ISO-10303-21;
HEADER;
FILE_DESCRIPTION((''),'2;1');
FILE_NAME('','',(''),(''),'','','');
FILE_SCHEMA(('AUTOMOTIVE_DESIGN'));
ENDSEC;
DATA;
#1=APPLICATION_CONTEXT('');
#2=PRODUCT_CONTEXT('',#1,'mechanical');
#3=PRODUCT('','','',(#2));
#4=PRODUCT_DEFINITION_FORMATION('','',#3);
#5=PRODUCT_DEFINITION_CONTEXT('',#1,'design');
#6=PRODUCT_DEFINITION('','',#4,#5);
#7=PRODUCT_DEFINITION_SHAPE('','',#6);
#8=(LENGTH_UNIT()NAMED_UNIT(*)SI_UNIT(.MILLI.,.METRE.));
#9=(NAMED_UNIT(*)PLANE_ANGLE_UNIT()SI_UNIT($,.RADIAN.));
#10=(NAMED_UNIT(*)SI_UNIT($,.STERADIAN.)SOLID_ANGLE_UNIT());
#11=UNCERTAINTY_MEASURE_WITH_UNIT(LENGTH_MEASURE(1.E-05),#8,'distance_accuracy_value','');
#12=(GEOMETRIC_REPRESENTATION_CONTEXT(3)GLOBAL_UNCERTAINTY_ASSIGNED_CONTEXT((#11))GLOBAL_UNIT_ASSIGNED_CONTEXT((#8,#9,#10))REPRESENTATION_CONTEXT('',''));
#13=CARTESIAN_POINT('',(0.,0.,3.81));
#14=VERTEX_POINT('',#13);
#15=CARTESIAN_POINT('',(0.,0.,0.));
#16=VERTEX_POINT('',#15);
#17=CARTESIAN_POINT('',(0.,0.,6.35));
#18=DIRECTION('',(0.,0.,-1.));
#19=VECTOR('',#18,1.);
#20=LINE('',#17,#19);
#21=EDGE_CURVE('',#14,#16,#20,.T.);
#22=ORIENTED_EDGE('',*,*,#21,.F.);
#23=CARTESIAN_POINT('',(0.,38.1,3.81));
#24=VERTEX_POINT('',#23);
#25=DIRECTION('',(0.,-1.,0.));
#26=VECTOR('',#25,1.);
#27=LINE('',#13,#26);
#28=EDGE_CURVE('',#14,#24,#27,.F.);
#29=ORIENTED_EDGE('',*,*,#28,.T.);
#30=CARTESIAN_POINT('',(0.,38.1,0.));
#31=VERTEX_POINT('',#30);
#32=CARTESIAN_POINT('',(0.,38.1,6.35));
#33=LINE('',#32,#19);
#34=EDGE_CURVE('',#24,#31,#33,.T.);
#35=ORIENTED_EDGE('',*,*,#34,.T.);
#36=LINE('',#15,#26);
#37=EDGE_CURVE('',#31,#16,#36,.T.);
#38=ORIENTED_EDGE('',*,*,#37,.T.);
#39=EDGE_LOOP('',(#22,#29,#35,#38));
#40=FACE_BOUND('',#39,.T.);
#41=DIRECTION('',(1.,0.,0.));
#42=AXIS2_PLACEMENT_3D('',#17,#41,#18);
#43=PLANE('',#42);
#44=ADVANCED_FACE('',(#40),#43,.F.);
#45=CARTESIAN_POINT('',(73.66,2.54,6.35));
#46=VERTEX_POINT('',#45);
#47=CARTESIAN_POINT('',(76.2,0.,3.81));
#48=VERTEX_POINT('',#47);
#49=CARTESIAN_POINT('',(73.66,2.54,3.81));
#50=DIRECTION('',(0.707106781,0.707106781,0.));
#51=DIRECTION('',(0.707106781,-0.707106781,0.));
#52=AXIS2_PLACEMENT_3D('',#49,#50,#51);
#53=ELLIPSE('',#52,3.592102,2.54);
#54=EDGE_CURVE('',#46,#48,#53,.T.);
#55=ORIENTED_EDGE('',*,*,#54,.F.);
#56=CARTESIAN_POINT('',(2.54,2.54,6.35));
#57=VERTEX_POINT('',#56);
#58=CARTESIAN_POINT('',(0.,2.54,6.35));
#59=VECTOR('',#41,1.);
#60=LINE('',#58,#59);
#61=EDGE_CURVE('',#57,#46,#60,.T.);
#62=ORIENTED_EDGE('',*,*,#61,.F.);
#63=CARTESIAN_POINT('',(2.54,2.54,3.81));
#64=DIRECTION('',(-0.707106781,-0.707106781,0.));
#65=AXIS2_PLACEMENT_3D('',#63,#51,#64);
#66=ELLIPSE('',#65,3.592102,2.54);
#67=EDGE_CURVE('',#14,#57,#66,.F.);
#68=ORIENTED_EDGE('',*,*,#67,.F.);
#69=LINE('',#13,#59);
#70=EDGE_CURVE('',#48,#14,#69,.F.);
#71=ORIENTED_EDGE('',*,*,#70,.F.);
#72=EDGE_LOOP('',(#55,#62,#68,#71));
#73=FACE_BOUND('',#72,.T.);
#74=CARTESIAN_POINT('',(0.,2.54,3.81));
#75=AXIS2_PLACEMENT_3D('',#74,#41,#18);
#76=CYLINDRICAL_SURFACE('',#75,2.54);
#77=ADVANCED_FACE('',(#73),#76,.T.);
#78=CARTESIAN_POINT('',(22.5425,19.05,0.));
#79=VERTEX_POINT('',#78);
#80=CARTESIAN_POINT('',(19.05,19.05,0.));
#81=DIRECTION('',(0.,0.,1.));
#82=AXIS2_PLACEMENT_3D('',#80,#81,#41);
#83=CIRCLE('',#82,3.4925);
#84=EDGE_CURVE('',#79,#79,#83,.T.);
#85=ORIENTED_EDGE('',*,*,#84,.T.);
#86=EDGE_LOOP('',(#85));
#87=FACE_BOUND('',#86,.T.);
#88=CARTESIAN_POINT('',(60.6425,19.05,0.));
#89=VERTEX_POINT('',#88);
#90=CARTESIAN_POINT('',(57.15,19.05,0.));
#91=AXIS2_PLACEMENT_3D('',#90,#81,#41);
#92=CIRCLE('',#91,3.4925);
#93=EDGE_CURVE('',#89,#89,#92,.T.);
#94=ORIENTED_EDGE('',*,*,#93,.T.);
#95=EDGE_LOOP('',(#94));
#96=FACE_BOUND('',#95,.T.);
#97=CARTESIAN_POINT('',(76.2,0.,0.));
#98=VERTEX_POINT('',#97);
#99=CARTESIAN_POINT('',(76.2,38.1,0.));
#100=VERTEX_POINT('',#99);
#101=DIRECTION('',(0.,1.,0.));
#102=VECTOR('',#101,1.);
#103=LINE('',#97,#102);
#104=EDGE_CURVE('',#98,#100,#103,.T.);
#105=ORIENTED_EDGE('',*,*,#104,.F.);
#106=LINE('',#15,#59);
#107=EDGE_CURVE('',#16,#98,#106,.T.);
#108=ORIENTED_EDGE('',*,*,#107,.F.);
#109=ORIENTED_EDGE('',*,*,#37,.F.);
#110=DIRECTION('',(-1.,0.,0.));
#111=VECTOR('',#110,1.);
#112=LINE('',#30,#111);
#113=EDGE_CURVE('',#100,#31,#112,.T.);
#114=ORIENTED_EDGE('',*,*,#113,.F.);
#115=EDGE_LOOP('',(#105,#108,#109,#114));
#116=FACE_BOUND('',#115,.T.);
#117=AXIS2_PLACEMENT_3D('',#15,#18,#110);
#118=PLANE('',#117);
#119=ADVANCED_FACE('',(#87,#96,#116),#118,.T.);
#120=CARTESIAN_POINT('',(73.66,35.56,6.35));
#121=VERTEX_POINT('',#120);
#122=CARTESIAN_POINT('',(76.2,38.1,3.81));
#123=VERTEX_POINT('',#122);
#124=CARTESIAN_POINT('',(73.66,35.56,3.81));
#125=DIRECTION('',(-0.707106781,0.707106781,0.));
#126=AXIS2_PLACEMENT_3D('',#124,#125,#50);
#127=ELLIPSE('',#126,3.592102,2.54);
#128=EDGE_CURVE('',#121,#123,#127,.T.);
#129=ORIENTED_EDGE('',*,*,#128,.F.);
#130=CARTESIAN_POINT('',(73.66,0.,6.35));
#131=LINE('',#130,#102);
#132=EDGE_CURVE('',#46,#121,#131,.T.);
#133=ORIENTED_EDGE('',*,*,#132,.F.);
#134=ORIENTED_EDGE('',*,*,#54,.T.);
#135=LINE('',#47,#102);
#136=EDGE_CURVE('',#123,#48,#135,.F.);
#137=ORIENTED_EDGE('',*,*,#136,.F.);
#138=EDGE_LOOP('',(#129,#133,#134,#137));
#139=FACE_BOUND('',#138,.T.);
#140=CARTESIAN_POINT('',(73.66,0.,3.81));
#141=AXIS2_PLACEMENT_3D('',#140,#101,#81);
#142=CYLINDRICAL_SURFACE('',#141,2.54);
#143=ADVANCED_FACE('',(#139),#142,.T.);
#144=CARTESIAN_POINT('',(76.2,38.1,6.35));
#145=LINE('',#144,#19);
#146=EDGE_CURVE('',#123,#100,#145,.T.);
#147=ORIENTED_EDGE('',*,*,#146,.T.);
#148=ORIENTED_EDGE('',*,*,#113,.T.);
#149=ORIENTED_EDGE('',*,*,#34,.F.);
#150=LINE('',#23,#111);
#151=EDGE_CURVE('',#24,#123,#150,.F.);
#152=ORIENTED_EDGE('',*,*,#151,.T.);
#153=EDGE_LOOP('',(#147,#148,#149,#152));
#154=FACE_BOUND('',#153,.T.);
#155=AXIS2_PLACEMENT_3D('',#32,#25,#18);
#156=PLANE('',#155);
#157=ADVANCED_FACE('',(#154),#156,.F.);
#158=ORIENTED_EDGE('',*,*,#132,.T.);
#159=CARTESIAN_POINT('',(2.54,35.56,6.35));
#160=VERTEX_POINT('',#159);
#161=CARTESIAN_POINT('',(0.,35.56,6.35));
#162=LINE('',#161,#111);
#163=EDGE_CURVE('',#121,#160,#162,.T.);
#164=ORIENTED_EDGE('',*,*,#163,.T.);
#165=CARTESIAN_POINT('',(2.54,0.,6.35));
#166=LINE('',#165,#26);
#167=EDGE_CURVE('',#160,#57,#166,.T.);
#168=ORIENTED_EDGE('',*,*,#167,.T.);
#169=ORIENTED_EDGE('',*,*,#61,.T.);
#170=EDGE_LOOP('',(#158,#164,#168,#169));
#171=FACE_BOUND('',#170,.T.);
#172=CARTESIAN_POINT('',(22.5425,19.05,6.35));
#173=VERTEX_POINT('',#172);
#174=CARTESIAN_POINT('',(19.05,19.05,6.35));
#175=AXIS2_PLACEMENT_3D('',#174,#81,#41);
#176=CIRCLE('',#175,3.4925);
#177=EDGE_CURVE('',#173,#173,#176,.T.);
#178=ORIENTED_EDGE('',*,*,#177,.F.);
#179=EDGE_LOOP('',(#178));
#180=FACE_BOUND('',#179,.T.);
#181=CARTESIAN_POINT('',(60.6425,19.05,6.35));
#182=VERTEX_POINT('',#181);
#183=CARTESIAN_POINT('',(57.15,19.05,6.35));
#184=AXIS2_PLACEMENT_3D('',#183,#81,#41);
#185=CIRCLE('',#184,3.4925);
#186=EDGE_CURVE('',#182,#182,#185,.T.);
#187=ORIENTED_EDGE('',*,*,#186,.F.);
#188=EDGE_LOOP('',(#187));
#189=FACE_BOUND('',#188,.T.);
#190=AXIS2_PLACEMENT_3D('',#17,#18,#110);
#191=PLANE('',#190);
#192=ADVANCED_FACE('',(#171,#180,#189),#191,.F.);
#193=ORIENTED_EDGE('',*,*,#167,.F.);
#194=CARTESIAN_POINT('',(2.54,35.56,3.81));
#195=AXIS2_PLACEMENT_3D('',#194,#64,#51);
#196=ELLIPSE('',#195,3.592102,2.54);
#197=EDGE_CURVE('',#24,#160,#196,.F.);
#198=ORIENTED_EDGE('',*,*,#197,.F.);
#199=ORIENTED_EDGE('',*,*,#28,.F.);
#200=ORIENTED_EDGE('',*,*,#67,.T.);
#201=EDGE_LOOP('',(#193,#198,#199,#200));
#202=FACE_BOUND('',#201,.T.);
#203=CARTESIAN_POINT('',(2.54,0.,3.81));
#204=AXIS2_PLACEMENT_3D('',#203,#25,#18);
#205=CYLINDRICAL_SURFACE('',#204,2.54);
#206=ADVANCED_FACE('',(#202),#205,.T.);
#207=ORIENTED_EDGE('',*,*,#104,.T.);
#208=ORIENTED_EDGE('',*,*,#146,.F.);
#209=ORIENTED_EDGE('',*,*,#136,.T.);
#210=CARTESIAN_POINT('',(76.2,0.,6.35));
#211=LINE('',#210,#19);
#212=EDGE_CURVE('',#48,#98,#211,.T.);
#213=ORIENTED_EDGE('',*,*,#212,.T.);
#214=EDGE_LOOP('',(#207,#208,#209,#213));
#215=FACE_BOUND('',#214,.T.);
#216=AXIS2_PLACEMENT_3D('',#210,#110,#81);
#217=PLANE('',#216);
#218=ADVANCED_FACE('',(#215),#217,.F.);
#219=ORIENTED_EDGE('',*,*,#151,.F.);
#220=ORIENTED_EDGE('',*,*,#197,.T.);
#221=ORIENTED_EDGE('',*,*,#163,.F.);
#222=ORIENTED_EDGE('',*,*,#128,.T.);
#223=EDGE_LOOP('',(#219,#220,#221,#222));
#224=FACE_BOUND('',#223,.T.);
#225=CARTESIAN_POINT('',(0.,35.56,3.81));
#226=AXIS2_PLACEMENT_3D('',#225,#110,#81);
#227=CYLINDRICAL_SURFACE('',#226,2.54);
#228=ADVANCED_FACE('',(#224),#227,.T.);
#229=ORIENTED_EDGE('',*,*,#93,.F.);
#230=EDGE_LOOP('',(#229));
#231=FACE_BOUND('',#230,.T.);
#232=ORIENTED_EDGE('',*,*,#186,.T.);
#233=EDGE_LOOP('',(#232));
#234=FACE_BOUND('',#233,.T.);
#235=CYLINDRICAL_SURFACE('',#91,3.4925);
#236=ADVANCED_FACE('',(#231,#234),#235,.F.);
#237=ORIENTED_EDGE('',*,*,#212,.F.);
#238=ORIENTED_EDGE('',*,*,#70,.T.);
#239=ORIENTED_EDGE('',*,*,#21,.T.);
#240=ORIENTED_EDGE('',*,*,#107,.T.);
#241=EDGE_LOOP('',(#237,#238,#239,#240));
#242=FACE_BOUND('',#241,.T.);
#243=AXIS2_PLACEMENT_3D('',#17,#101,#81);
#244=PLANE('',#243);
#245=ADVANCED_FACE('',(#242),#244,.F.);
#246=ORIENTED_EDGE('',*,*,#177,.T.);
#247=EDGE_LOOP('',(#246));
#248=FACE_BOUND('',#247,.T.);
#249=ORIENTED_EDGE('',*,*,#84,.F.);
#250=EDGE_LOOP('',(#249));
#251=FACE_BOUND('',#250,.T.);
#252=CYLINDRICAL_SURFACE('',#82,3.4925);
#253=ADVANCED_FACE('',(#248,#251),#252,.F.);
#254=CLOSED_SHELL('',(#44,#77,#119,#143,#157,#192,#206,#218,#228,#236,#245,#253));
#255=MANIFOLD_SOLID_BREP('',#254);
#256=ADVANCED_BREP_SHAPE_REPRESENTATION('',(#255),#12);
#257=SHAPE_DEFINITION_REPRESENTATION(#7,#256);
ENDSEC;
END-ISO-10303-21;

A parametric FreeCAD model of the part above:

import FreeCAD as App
import Part
import Sketcher
Q = App.Units.Quantity


def edges_at(feature, points):
    """Names of the edges that pass closest to the given points."""
    edges = feature.Shape.Edges
    near = lambda p: min(range(len(edges)), key=lambda i: edges[i].distToShape(Part.Vertex(*p))[0])
    return sorted({f"Edge{near(p) + 1}" for p in points})


def add_polygon(sketch, points):
    """Adds a closed chain of lines whose ends are joined by coincident constraints."""
    first, n = sketch.GeometryCount, len(points)
    for a, b in zip(points, points[1:] + points[:1]):
        sketch.addGeometry(Part.LineSegment(App.Vector(*a, 0), App.Vector(*b, 0)), False)
    for i in range(n):
        sketch.addConstraint(Sketcher.Constraint("Coincident", first + i, 2, first + (i + 1) % n, 1))

doc = App.newDocument("Part")
params = doc.addObject("Spreadsheet::Sheet", "Params")
for row, (alias, value) in enumerate([
    ("sketch1_width", "3 in"),
    ("sketch1_height", "1.5 in"),
    ("pad1_length", "0.25 in"),
    ("fillet_radius", "0.1 in"),
    ("sketch2_diameter", "0.275 in"),
    ("pocket1_length", "0.25 in"),
], start=1):
    params.set(f"A{row}", alias)
    params.set(f"B{row}", "=" + value)
    params.setAlias(f"B{row}", alias)

body = doc.addObject("PartDesign::Body", "Body")

# Sketch on XY plane
sketch1 = body.newObject("Sketcher::SketchObject", "Sketch")
sketch1.AttachmentSupport = (doc.getObject("XY_Plane"), [""])
sketch1.MapMode = "FlatFace"
add_polygon(sketch1, [(0, 38), (0, 0), (76, 0), (76, 38)])  # lines 0-3
sketch1.addConstraint([
    Sketcher.Constraint("Vertical", 0),
    Sketcher.Constraint("Horizontal", 1),
    Sketcher.Constraint("Vertical", 2),
    Sketcher.Constraint("Horizontal", 3),
    Sketcher.Constraint("Coincident", 0, 2, -1, 1),
    Sketcher.Constraint("DistanceX", 1, 1, 1, 2, Q("3 in")),
    Sketcher.Constraint("DistanceY", 0, 2, 0, 1, Q("1.5 in")),
])
sketch1.setExpression("Constraints[9]", "Params.sketch1_width")
sketch1.setExpression("Constraints[10]", "Params.sketch1_height")
pad1 = body.newObject("PartDesign::Pad", "Pad")
pad1.Profile = sketch1
pad1.setExpression("Length", "Params.pad1_length")
doc.recompute()

fillet = body.newObject("PartDesign::Fillet", "Fillet")
fillet.Base = (pad1, edges_at(pad1, [
    (76.2, 19.05, 6.35),
    (38.1, 38.1, 6.35),
    (0, 19.05, 6.35),
    (38.1, 0, 6.35),
]))
fillet.setExpression("Radius", "Params.fillet_radius")

# Sketch on XY plane
sketch2 = body.newObject("Sketcher::SketchObject", "Sketch001")
sketch2.AttachmentSupport = (doc.getObject("XY_Plane"), [""])
sketch2.MapMode = "FlatFace"
sketch2.AttachmentOffset = App.Placement(App.Vector(0, 0, 0.25 * 25.4), App.Rotation())
sketch2.addGeometry([
    Part.Circle(App.Vector(19.1, 19.1, 0), App.Vector(0, 0, 1), 3.5),
    Part.Circle(App.Vector(57.1, 19.1, 0), App.Vector(0, 0, 1), 3.5),
], False)
sketch2.addConstraint([
    Sketcher.Constraint("Equal", 0, 1),
    Sketcher.Constraint("Horizontal", 0, 3, 1, 3),
    Sketcher.Constraint("Diameter", 0, Q("0.275 in")),
    Sketcher.Constraint("DistanceX", 0, 3, 1, 3, Q("1.5 in")),
    Sketcher.Constraint("DistanceX", -1, 1, 0, 3, Q("0.75 in")),
    Sketcher.Constraint("DistanceY", -1, 1, 0, 3, Q("0.75 in")),
])
sketch2.setExpression("Constraints[2]", "Params.sketch2_diameter")
pocket1 = body.newObject("PartDesign::Pocket", "Pocket")
pocket1.Profile = sketch2
pocket1.setExpression("Length", "Params.pocket1_length")

doc.recompute()
